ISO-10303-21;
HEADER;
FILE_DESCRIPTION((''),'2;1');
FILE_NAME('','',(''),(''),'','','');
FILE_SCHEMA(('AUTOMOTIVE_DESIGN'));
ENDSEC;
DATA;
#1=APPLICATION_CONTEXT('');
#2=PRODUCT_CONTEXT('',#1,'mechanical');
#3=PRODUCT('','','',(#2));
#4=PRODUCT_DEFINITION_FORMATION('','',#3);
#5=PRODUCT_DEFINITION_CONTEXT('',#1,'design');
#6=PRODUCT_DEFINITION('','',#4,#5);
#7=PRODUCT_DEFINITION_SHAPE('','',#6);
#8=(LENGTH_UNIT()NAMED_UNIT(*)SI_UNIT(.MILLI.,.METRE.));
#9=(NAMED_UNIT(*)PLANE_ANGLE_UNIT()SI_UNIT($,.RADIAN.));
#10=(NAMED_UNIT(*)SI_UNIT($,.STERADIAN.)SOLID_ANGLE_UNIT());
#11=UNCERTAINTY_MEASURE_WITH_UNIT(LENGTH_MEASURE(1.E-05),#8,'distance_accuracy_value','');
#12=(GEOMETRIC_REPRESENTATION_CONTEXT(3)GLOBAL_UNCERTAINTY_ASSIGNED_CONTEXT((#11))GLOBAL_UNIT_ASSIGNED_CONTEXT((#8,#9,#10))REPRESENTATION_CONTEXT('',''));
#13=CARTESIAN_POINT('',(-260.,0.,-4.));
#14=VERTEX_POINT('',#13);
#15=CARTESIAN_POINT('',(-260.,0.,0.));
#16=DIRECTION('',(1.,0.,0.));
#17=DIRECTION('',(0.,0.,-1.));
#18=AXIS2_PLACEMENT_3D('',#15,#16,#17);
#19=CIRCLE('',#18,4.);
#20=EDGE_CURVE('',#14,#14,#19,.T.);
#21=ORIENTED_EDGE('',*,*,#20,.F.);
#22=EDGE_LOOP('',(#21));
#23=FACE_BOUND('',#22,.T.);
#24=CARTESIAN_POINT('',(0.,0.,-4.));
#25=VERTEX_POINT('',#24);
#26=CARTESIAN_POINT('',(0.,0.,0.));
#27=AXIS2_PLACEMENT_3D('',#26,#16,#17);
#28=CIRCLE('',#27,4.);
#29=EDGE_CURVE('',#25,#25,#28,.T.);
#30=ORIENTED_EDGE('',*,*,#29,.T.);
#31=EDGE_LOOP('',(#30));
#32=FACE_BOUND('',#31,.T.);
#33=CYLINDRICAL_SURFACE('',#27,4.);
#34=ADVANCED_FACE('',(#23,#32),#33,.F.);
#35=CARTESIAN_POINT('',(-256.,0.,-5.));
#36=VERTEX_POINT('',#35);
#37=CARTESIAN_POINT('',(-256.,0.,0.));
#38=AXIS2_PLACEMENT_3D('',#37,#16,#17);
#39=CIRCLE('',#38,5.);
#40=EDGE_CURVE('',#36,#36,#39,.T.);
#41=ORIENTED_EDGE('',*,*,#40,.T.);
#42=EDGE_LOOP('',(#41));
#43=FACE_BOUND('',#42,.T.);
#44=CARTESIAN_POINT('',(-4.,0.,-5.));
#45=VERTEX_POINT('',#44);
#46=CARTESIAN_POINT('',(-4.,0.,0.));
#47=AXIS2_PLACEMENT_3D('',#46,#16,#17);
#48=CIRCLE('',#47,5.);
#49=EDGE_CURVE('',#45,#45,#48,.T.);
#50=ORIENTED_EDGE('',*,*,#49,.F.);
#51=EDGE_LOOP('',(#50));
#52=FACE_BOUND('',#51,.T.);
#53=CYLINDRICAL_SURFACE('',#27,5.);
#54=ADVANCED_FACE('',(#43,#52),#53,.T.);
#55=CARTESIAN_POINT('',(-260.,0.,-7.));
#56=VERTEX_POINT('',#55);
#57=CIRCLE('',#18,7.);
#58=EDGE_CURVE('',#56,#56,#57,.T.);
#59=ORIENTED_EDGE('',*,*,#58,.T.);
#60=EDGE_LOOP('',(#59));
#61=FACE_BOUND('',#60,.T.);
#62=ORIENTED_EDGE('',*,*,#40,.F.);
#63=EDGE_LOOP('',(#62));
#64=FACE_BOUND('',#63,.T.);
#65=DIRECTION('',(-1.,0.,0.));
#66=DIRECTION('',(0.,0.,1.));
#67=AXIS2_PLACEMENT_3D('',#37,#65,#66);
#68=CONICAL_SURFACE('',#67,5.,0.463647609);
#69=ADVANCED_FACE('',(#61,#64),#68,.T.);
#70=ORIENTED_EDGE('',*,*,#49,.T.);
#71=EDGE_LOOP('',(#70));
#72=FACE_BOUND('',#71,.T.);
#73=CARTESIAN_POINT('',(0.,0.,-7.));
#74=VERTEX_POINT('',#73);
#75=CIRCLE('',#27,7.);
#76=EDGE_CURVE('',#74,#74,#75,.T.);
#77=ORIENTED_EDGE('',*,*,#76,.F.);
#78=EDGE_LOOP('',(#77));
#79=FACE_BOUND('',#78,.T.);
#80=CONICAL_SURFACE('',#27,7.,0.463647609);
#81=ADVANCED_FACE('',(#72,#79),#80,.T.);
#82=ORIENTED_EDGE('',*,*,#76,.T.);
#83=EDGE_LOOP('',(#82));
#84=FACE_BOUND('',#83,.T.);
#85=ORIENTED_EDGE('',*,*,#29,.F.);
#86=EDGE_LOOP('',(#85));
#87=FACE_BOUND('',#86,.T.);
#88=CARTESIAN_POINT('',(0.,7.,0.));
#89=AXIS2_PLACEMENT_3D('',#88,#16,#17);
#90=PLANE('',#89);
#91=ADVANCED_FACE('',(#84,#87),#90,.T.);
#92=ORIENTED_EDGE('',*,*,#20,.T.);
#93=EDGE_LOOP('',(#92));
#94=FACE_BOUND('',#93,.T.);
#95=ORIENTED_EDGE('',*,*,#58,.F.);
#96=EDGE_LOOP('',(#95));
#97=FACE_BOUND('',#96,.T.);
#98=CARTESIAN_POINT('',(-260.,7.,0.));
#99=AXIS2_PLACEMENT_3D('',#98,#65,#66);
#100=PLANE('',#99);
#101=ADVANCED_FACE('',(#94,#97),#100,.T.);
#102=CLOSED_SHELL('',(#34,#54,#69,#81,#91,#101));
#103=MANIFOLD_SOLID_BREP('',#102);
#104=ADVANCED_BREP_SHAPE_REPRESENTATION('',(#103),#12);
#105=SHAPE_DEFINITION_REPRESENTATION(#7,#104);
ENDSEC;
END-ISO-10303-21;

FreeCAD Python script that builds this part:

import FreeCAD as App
import Part
import Sketcher

V = App.Vector
Q = App.Units.Quantity


def add_polygon(sketch, points):
    """Adds a closed chain of lines whose ends are joined by coincident constraints."""
    first, n = sketch.GeometryCount, len(points)
    for a, b in zip(points, points[1:] + points[:1]):
        sketch.addGeometry(Part.LineSegment(App.Vector(*a, 0), App.Vector(*b, 0)), False)
    for i in range(n):
        sketch.addConstraint(Sketcher.Constraint("Coincident", first + i, 2, first + (i + 1) % n, 1))

doc = App.newDocument("Part")
body = doc.addObject("PartDesign::Body", "Body")

sketch1 = doc.addObject("Sketcher::SketchObject", "Sketch")
body.addObject(sketch1)
sketch1.AttachmentSupport = (doc.XY_Plane, [""])
sketch1.MapMode = "FlatFace"
add_polygon(sketch1, [(-4, 5), (-256, 5), (-260, 7), (-260, 4), (0, 4), (0, 7)])
sketch1.addConstraint(Sketcher.Constraint("Horizontal", 0))
sketch1.addConstraint(Sketcher.Constraint("Vertical", 2))
sketch1.addConstraint(Sketcher.Constraint("Horizontal", 3))
sketch1.addConstraint(Sketcher.Constraint("Vertical", 4))
sketch1.addConstraint(Sketcher.Constraint("PointOnObject", 3, 2, -2))
sketch1.addConstraint(Sketcher.Constraint("Horizontal", 1, 2, 4, 2))
sketch1.addConstraint(Sketcher.Constraint("Equal", 1, 5))
sketch1.addConstraint(Sketcher.Constraint("DistanceX", 0, 2, 0, 1, Q("252 mm")))
sketch1.addConstraint(Sketcher.Constraint("DistanceX", 3, 1, 3, 2, Q("260 mm")))
sketch1.addConstraint(Sketcher.Constraint("DistanceY", 2, 2, 2, 1, Q("3 mm")))
sketch1.addConstraint(Sketcher.Constraint("DistanceY", -1, 1, 0, 2, Q("5 mm")))
sketch1.addConstraint(Sketcher.Constraint("DistanceY", -1, 1, 1, 2, Q("7 mm")))
revolution = doc.addObject("PartDesign::Revolution", "Revolution")
body.addObject(revolution)
revolution.Profile = sketch1
revolution.ReferenceAxis = (sketch1, ["H_Axis"])
revolution.Angle = 360

doc.recompute()
